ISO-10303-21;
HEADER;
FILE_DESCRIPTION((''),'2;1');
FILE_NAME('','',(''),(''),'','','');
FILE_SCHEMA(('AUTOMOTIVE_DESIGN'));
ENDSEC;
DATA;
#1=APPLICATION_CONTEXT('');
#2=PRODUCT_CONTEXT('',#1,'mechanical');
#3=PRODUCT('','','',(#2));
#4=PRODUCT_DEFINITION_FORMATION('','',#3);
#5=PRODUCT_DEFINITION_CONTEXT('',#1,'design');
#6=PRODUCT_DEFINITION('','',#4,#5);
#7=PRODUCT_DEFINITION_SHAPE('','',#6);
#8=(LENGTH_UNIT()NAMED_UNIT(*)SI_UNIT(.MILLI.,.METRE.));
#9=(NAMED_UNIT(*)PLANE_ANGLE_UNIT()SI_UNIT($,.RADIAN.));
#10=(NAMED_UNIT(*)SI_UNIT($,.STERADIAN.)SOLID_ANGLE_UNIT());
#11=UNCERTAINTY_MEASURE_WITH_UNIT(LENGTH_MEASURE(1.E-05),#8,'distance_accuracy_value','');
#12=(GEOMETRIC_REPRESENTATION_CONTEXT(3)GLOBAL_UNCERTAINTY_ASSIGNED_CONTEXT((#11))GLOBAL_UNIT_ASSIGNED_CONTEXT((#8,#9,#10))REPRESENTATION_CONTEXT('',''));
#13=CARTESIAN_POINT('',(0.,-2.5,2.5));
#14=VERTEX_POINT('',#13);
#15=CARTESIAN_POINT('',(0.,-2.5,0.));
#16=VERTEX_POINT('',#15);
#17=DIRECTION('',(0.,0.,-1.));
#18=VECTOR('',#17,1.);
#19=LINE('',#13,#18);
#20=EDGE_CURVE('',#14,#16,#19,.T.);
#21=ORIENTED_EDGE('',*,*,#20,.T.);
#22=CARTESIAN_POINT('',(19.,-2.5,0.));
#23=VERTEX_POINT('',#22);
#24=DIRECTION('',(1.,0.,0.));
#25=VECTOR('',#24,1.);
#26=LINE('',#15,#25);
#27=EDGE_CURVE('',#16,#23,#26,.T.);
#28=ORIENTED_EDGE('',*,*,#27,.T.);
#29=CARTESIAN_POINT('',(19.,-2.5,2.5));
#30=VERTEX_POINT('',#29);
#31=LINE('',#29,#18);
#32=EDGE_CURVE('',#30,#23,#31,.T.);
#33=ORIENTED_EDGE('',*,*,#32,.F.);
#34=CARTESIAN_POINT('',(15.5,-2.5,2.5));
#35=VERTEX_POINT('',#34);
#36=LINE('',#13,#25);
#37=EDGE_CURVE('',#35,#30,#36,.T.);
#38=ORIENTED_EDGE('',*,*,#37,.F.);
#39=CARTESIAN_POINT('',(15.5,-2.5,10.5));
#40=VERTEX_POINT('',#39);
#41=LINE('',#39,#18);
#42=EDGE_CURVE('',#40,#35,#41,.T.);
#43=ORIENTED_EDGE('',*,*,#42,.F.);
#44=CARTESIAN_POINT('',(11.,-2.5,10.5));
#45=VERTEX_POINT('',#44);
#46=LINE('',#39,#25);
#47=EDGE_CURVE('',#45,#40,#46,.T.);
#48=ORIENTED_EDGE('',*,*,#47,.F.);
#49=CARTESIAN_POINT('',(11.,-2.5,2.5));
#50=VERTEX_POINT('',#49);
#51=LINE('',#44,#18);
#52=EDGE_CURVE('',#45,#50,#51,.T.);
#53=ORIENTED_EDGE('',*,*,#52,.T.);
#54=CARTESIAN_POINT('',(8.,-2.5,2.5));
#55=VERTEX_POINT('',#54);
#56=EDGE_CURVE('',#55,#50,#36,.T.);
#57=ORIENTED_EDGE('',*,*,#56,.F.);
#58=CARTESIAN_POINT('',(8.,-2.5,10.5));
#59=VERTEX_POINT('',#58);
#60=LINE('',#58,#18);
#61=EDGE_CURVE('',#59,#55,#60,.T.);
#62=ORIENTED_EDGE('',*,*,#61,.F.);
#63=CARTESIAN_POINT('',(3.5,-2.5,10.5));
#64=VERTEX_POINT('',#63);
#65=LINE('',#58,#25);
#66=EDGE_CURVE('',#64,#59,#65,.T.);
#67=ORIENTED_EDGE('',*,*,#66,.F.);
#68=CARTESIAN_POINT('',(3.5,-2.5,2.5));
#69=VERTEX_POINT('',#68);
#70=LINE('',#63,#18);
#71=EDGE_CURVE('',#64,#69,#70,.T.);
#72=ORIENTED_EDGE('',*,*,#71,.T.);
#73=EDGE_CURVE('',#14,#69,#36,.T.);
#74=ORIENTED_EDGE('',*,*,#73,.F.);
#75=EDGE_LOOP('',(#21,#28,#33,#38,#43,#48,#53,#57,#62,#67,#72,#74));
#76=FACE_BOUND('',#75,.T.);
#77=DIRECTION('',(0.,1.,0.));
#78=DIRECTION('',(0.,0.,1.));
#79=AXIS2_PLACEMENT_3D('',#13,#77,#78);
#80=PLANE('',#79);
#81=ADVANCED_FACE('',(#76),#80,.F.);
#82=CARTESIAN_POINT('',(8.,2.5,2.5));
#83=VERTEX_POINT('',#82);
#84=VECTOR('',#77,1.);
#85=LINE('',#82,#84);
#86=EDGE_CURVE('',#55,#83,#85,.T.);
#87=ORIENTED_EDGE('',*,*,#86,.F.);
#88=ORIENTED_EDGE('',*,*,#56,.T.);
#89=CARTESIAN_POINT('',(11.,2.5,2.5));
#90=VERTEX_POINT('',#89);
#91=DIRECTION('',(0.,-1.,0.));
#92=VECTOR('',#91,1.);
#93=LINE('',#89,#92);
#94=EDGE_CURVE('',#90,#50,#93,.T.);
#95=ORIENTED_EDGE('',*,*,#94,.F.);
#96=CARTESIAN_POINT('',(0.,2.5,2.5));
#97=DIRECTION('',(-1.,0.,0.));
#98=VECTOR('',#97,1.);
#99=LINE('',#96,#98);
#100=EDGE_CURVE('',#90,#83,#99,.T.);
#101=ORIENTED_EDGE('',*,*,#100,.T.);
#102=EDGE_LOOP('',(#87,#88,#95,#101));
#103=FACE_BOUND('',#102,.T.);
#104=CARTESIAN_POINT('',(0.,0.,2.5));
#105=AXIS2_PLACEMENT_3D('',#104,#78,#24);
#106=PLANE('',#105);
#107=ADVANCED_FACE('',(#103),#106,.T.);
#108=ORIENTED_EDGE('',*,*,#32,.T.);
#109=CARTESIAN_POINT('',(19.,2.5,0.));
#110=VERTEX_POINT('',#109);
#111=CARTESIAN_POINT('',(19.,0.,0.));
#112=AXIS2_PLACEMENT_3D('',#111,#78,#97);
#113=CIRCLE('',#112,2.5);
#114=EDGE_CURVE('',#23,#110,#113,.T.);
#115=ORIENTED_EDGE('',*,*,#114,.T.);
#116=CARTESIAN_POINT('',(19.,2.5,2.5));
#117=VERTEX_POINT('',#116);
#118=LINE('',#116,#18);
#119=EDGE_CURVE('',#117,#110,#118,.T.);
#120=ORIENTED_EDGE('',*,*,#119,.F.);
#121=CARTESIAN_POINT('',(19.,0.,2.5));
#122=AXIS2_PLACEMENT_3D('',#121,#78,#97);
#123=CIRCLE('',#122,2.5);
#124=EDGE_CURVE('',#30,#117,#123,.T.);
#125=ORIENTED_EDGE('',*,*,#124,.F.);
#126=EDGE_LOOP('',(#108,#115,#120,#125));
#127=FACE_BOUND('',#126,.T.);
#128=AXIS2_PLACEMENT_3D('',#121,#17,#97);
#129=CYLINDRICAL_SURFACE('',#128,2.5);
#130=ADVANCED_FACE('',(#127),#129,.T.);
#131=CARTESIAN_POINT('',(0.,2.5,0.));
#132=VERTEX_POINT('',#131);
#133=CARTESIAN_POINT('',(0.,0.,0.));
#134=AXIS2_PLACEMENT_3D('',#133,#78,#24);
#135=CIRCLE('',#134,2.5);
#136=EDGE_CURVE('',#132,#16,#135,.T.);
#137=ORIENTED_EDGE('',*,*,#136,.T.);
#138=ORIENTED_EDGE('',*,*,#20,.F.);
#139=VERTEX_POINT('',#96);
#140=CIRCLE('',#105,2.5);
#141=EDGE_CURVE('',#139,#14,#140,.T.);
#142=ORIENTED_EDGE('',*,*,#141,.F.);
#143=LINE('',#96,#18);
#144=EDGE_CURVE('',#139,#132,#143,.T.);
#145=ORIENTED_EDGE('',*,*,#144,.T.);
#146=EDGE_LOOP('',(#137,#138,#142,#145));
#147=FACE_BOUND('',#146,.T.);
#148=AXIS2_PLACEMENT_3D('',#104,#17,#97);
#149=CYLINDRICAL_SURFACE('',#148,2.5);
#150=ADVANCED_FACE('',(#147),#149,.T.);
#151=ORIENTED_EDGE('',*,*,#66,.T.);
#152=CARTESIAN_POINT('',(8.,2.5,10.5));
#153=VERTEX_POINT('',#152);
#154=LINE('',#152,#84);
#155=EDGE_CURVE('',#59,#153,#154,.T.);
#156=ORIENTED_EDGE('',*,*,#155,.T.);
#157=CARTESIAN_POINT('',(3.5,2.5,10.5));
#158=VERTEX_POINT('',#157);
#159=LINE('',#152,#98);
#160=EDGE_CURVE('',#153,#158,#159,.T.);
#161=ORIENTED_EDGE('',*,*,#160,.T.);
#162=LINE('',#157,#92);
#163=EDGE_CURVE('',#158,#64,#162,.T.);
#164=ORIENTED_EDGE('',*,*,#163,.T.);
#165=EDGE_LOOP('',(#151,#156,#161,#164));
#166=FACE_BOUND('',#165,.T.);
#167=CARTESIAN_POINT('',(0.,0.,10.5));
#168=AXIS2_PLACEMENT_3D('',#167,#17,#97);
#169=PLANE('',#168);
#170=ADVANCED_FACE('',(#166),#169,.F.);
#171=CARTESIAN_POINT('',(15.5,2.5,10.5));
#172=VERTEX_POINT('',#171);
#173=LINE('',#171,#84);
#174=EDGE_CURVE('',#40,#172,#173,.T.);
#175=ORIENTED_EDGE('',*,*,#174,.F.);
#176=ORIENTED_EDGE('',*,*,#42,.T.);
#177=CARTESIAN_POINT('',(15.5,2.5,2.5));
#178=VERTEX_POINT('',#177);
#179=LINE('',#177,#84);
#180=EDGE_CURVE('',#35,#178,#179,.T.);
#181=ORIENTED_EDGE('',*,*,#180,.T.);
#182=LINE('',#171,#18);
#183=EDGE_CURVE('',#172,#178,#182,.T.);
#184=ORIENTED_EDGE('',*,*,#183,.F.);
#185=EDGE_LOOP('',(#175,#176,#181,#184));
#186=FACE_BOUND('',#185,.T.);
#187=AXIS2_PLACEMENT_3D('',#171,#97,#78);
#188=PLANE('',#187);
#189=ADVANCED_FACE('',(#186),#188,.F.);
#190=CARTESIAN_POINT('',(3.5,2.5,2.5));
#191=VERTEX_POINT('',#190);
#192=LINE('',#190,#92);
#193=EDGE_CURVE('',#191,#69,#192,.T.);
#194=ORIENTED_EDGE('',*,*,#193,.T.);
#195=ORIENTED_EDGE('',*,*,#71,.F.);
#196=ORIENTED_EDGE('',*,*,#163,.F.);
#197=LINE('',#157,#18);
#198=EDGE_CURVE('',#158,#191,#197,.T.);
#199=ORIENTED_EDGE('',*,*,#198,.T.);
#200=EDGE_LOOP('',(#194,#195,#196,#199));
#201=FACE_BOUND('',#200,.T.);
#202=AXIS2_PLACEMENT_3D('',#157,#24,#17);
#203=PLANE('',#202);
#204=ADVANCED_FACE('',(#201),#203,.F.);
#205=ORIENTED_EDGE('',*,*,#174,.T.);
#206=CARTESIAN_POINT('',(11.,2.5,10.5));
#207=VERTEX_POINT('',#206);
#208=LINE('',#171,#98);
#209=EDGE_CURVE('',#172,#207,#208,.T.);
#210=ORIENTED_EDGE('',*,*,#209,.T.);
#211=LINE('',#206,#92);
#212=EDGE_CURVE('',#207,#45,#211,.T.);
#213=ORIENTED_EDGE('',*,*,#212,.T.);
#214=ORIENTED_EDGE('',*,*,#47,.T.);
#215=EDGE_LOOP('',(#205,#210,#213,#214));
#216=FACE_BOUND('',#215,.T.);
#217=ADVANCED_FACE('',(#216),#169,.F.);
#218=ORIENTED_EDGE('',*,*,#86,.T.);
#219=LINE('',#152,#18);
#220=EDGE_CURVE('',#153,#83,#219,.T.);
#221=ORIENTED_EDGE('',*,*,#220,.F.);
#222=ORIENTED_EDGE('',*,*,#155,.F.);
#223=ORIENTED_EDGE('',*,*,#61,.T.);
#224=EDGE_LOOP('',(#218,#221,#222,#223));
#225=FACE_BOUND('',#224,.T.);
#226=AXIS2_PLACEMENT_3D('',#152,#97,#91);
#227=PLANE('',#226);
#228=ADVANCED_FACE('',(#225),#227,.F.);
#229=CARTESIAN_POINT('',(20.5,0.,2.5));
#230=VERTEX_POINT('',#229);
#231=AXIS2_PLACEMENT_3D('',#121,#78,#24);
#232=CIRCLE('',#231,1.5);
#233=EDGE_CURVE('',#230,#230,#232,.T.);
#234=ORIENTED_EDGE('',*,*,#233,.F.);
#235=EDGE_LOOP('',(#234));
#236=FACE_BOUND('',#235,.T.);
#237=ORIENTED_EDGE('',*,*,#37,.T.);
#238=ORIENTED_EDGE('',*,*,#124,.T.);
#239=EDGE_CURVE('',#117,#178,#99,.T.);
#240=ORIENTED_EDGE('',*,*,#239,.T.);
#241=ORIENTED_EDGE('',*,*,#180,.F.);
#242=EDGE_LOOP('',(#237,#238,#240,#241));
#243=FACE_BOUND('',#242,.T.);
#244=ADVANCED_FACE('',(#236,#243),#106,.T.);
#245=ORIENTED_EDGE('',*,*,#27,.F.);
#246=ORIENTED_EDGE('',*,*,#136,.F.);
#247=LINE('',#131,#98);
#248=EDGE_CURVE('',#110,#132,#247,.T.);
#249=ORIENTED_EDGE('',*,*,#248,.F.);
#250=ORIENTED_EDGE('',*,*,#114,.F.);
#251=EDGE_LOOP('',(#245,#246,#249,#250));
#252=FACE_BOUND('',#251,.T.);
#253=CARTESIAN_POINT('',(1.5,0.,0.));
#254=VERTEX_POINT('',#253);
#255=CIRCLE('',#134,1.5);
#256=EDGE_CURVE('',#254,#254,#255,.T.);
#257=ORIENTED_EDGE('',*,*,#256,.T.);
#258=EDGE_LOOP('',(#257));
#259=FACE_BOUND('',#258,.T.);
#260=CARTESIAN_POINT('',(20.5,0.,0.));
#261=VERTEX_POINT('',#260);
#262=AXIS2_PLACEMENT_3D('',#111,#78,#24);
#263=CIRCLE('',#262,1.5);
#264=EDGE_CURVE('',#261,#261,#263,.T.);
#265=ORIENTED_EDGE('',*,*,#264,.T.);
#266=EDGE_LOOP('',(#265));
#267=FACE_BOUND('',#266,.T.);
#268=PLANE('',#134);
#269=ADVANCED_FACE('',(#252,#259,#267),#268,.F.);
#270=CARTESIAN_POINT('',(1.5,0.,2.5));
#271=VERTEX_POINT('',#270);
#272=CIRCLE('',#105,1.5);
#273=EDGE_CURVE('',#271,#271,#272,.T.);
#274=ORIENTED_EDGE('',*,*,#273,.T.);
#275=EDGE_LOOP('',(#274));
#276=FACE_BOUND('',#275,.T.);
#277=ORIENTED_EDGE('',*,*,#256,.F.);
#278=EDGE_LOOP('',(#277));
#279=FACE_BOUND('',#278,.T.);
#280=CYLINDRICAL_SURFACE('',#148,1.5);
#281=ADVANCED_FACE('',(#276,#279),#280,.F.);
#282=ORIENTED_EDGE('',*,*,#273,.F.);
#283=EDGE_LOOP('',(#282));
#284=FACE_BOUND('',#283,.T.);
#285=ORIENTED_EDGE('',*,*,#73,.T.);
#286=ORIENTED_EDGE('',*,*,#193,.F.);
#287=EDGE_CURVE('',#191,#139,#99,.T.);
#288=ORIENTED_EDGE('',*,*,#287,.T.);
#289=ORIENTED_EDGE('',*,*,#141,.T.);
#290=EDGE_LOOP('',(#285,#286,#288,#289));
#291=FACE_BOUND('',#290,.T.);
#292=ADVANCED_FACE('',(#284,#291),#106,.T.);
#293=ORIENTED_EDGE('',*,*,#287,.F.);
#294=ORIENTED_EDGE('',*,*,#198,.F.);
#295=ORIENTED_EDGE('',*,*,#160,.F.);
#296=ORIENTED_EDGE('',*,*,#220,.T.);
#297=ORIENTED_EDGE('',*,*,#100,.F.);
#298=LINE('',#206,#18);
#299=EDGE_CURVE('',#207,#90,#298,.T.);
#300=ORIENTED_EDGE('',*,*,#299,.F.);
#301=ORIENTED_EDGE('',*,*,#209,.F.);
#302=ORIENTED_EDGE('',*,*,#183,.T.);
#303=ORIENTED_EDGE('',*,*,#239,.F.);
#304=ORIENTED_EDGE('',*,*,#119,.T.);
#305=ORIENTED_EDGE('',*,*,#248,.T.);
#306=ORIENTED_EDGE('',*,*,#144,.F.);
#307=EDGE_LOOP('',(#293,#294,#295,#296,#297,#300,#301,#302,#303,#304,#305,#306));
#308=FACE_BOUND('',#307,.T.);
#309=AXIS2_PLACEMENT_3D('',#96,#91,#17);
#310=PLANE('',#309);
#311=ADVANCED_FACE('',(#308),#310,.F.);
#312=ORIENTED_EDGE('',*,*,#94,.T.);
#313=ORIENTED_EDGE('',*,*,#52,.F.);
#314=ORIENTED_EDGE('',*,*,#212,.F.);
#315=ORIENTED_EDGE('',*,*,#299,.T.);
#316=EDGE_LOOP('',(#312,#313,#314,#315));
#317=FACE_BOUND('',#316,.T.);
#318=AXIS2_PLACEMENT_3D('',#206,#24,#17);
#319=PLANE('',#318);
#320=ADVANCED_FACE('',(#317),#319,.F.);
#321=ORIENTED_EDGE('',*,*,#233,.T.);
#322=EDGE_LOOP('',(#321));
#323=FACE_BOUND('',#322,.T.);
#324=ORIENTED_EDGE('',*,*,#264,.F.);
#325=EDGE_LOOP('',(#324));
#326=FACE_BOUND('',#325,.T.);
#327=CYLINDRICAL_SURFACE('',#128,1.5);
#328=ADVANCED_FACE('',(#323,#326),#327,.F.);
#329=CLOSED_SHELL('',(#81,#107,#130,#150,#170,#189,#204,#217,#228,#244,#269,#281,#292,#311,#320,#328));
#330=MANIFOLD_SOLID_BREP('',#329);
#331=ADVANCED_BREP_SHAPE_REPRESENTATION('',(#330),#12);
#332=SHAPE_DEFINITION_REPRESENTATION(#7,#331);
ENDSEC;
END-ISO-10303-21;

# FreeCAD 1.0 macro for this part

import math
import FreeCAD as App
import Part
import Sketcher

V = App.Vector
Q = App.Units.Quantity


def add_polygon(sketch, points):
    """Adds a closed chain of lines whose ends are joined by coincident constraints."""
    first, n = sketch.GeometryCount, len(points)
    for a, b in zip(points, points[1:] + points[:1]):
        sketch.addGeometry(Part.LineSegment(App.Vector(*a, 0), App.Vector(*b, 0)), False)
    for i in range(n):
        sketch.addConstraint(Sketcher.Constraint("Coincident", first + i, 2, first + (i + 1) % n, 1))

doc = App.newDocument("Part")
body = doc.addObject("PartDesign::Body", "Body")

# Sketch on XY plane
sketch1 = body.newObject("Sketcher::SketchObject", "Sketch")
sketch1.AttachmentSupport = (doc.getObject("XY_Plane"), [""])
sketch1.MapMode = "FlatFace"
sketch1.addGeometry([
    Part.LineSegment(V(19, 2.5, 0), V(0, 2.5, 0)),  # 0
    Part.ArcOfCircle(Part.Circle(V(0, 0, 0), V(0, 0, 1), 2.5), math.radians(90), math.radians(270)),  # 1
    Part.LineSegment(V(0, -2.5, 0), V(19, -2.5, 0)),  # 2
    Part.ArcOfCircle(Part.Circle(V(19, 0, 0), V(0, 0, 1), 2.5), math.radians(-90), math.radians(90)),  # 3
    Part.Circle(V(19, 0, 0), V(0, 0, 1), 1.5),  # 4
    Part.Circle(V(0, 0, 0), V(0, 0, 1), 1.5),  # 5
], False)
sketch1.addConstraint([
    Sketcher.Constraint("Tangent", 0, 2, 1, 1),
    Sketcher.Constraint("Tangent", 1, 2, 2, 1),
    Sketcher.Constraint("Tangent", 2, 2, 3, 1),
    Sketcher.Constraint("Tangent", 3, 2, 0, 1),
    Sketcher.Constraint("Horizontal", 0),
    Sketcher.Constraint("Horizontal", 2),
    Sketcher.Constraint("Coincident", 1, 3, -1, 1),
    Sketcher.Constraint("Coincident", 5, 3, -1, 1),
    Sketcher.Constraint("Coincident", 4, 3, 3, 3),
    Sketcher.Constraint("Equal", 4, 5),
    Sketcher.Constraint("Diameter", 4, Q("3 mm")),
    Sketcher.Constraint("Radius", 1, Q("2.5 mm")),
    Sketcher.Constraint("DistanceX", 0, 2, 0, 1, Q("19 mm")),
])
pad1 = body.newObject("PartDesign::Pad", "Pad")
pad1.Profile = sketch1
pad1.Length = 2.5

# Sketch on XY plane
sketch2 = body.newObject("Sketcher::SketchObject", "Sketch001")
sketch2.AttachmentSupport = (doc.getObject("XY_Plane"), [""])
sketch2.MapMode = "FlatFace"
sketch2.AttachmentOffset = App.Placement(V(0, 0, 2.5), App.Rotation())
add_polygon(sketch2, [(3.5, 2.5), (3.5, -2.5), (8, -2.5), (8, 2.5)])  # lines 0-3
add_polygon(sketch2, [(11, 2.5), (11, -2.5), (15.5, -2.5), (15.5, 2.5)])  # lines 4-7
sketch2.addConstraint([
    Sketcher.Constraint("Vertical", 0),
    Sketcher.Constraint("Horizontal", 1),
    Sketcher.Constraint("Vertical", 2),
    Sketcher.Constraint("Horizontal", 3),
    Sketcher.Constraint("Vertical", 4),
    Sketcher.Constraint("Horizontal", 5),
    Sketcher.Constraint("Vertical", 6),
    Sketcher.Constraint("Horizontal", 7),
    Sketcher.Constraint("Horizontal", 1, 2, 4, 2),
    Sketcher.Constraint("Horizontal", 3, 2, 6, 2),
    Sketcher.Constraint("Equal", 3, 5),
    Sketcher.Constraint("DistanceY", 0, 2, 0, 1, Q("5 mm")),
    Sketcher.Constraint("DistanceX", 1, 1, 1, 2, Q("4.5 mm")),
    Sketcher.Constraint("DistanceX", -1, 1, 1, 2, Q("8 mm")),
    Sketcher.Constraint("DistanceX", -1, 1, 4, 2, Q("11 mm")),
    Sketcher.Constraint("DistanceY", 0, 2, -1, 1, Q("2.5 mm")),
])
pad2 = body.newObject("PartDesign::Pad", "Pad001")
pad2.Profile = sketch2
pad2.Length = 8

doc.recompute()
